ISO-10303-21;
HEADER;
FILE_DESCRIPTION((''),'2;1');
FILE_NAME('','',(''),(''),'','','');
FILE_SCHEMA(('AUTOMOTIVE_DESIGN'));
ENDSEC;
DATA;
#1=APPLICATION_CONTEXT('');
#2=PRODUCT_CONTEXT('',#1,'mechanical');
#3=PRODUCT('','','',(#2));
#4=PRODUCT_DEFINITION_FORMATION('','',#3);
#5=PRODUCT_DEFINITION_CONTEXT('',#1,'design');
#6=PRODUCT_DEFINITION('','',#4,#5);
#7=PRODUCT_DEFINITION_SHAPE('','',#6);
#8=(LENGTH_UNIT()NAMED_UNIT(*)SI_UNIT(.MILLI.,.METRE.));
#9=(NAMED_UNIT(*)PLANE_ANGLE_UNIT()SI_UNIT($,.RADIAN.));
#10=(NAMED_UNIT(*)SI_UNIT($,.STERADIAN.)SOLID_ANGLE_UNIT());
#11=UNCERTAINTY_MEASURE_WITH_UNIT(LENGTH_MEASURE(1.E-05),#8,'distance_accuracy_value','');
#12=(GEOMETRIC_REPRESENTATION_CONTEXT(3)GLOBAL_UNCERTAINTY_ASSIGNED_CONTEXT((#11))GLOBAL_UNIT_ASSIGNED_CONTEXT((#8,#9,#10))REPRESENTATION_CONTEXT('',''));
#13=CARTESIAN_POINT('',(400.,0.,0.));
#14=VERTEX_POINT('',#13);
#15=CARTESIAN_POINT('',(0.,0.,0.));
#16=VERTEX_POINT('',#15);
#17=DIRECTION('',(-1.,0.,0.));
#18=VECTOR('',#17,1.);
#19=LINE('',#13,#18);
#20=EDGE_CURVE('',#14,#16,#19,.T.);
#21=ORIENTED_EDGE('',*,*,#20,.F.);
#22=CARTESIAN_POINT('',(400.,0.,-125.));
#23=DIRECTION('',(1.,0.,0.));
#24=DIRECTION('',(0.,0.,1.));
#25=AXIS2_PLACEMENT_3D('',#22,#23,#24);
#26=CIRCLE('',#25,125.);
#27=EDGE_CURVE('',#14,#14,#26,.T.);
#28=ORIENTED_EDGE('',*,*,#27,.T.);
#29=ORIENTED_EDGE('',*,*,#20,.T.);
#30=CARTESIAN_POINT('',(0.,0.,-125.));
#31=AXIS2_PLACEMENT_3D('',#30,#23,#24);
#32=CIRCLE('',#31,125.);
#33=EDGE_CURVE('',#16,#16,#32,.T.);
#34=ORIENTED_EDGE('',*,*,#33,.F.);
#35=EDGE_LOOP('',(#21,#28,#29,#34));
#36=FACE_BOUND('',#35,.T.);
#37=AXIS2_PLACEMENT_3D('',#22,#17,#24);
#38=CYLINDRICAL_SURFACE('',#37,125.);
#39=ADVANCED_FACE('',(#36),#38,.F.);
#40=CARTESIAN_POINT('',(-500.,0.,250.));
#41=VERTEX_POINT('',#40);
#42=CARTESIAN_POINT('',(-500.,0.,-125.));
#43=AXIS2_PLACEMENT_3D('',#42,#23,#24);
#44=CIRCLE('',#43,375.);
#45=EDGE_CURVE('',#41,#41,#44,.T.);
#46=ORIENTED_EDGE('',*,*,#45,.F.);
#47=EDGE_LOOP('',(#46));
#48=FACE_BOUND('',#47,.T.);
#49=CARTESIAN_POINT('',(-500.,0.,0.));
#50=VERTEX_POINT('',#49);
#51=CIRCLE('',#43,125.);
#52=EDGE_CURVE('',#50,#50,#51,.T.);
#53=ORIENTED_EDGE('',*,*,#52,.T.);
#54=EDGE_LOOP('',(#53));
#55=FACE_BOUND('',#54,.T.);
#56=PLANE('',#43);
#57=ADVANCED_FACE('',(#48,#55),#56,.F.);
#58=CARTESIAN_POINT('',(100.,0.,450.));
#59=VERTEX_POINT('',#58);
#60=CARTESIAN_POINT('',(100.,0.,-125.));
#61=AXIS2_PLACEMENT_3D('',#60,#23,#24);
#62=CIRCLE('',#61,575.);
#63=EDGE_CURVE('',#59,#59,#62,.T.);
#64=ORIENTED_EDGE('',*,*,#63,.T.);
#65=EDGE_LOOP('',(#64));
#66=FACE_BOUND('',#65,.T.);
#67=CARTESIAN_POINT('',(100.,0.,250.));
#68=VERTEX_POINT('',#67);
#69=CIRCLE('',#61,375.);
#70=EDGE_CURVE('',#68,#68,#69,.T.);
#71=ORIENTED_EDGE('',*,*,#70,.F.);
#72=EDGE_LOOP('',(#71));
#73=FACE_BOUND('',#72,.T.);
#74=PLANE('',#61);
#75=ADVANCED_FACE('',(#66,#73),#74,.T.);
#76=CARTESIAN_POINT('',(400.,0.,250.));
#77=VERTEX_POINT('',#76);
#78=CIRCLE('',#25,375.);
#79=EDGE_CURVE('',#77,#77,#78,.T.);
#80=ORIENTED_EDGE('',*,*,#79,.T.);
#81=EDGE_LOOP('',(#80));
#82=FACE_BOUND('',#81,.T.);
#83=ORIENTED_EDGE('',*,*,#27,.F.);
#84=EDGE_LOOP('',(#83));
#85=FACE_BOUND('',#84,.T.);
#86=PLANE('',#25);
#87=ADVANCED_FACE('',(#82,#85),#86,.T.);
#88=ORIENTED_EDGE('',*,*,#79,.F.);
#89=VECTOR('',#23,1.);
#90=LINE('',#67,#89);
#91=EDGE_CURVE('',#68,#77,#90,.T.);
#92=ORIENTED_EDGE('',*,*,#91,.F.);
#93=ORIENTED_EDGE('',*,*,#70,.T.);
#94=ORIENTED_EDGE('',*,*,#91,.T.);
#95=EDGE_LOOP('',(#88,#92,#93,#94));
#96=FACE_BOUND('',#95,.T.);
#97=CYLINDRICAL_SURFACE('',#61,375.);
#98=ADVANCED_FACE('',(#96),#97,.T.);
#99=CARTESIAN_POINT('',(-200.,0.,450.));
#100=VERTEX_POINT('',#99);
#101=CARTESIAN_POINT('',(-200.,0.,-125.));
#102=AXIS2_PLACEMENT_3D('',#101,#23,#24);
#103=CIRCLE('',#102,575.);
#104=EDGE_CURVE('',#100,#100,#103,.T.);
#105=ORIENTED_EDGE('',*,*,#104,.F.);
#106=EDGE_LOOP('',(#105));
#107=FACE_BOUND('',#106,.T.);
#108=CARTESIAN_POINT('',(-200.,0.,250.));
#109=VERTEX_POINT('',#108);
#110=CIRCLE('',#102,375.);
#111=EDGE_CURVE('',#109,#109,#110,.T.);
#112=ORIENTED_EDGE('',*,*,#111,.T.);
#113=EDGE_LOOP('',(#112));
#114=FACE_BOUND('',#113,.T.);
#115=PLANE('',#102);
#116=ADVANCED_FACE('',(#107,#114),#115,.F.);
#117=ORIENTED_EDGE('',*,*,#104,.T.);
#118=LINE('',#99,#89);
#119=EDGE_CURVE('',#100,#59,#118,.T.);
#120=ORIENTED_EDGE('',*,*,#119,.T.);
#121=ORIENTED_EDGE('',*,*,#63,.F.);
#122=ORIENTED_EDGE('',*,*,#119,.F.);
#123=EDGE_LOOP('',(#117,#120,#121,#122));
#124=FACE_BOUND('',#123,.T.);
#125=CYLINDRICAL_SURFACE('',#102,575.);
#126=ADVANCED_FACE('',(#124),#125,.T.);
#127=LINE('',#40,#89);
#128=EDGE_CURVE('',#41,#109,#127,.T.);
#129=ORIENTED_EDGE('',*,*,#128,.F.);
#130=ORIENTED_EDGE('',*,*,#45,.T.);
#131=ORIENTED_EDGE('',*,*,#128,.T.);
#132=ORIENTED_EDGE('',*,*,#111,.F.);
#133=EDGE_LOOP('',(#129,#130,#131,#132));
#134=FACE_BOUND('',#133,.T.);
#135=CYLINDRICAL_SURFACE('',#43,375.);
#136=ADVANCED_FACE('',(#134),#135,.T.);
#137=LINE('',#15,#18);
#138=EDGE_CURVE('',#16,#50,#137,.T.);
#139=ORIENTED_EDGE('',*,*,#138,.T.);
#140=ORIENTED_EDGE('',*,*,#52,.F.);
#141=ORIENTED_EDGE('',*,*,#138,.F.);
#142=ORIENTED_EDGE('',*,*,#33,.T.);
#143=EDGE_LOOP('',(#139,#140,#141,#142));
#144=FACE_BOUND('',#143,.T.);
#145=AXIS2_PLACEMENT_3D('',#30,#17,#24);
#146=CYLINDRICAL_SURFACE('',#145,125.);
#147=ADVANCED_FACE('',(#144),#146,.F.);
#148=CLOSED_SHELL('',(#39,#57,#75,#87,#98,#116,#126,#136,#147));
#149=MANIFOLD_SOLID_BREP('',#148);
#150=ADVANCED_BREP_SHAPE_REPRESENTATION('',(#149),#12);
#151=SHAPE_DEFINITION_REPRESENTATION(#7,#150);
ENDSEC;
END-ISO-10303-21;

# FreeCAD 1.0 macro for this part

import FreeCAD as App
import Part
import Sketcher
from FreeCAD import Vector

doc = App.newDocument("Part")
body = doc.addObject("PartDesign::Body", "Body")

# Sketch on XZ plane
sketch1 = doc.addObject("Sketcher::SketchObject", "Sketch")
body.addObject(sketch1)
sketch1.AttachmentSupport = (doc.XZ_Plane, [""])
sketch1.MapMode = "FlatFace"
sketch1.addGeometry(Part.LineSegment(Vector(-200, 450, 0), Vector(-200, 250, 0)), False)
sketch1.addGeometry(Part.LineSegment(Vector(-200, 250, 0), Vector(-500, 250, 0)), False)
sketch1.addGeometry(Part.LineSegment(Vector(-500, 250, 0), Vector(-500, 0, 0)), False)
sketch1.addGeometry(Part.LineSegment(Vector(-500, 0, 0), Vector(400, 0, 0)), False)
sketch1.addGeometry(Part.LineSegment(Vector(400, 0, 0), Vector(400, 250, 0)), False)
sketch1.addGeometry(Part.LineSegment(Vector(400, 250, 0), Vector(100, 250, 0)), False)
sketch1.addGeometry(Part.LineSegment(Vector(100, 250, 0), Vector(100, 450, 0)), False)
sketch1.addGeometry(Part.LineSegment(Vector(100, 450, 0), Vector(-200, 450, 0)), False)
sketch1.addGeometry(Part.LineSegment(Vector(-500, -125, 0), Vector(400, -125, 0)), True)  # axis
sketch1.addConstraint(Sketcher.Constraint("Coincident", 0, 2, 1, 1))
sketch1.addConstraint(Sketcher.Constraint("Coincident", 1, 2, 2, 1))
sketch1.addConstraint(Sketcher.Constraint("Coincident", 2, 2, 3, 1))
sketch1.addConstraint(Sketcher.Constraint("Coincident", 3, 2, 4, 1))
sketch1.addConstraint(Sketcher.Constraint("Coincident", 4, 2, 5, 1))
sketch1.addConstraint(Sketcher.Constraint("Coincident", 5, 2, 6, 1))
sketch1.addConstraint(Sketcher.Constraint("Coincident", 6, 2, 7, 1))
sketch1.addConstraint(Sketcher.Constraint("Coincident", 7, 2, 0, 1))
sketch1.addConstraint(Sketcher.Constraint("Vertical", 0))
sketch1.addConstraint(Sketcher.Constraint("Horizontal", 1))
sketch1.addConstraint(Sketcher.Constraint("Vertical", 2))
sketch1.addConstraint(Sketcher.Constraint("Horizontal", 3))
sketch1.addConstraint(Sketcher.Constraint("Vertical", 4))
sketch1.addConstraint(Sketcher.Constraint("Horizontal", 5))
sketch1.addConstraint(Sketcher.Constraint("Vertical", 6))
sketch1.addConstraint(Sketcher.Constraint("Horizontal", 7))
sketch1.addConstraint(Sketcher.Constraint("Horizontal", 8))
sketch1.addConstraint(Sketcher.Constraint("PointOnObject", 2, 2, -1))
sketch1.addConstraint(Sketcher.Constraint("Horizontal", 1, 2, 4, 2))
sketch1.addConstraint(Sketcher.Constraint("Vertical", 2, 2, 8, 1))
sketch1.addConstraint(Sketcher.Constraint("Vertical", 4, 2, 8, 2))
sketch1.addConstraint(Sketcher.Constraint("Equal", 1, 5))
sketch1.addConstraint(Sketcher.Constraint("Equal", 5, 7))
sketch1.addConstraint(Sketcher.Constraint("DistanceX", 1, 2, 1, 1, 300.0))
sketch1.addConstraint(Sketcher.Constraint("DistanceY", 0, 2, 0, 1, 200.0))
sketch1.addConstraint(Sketcher.Constraint("DistanceY", 2, 2, 2, 1, 250.0))
sketch1.addConstraint(Sketcher.Constraint("DistanceX", 0, 2, -1, 1, 200.0))
sketch1.addConstraint(Sketcher.Constraint("DistanceY", 8, 1, -1, 1, 125.0))
revolution = doc.addObject("PartDesign::Revolution", "Revolution")
body.addObject(revolution)
revolution.Profile = sketch1
revolution.ReferenceAxis = (sketch1, ["Axis0"])
revolution.Angle = 360

doc.recompute()
